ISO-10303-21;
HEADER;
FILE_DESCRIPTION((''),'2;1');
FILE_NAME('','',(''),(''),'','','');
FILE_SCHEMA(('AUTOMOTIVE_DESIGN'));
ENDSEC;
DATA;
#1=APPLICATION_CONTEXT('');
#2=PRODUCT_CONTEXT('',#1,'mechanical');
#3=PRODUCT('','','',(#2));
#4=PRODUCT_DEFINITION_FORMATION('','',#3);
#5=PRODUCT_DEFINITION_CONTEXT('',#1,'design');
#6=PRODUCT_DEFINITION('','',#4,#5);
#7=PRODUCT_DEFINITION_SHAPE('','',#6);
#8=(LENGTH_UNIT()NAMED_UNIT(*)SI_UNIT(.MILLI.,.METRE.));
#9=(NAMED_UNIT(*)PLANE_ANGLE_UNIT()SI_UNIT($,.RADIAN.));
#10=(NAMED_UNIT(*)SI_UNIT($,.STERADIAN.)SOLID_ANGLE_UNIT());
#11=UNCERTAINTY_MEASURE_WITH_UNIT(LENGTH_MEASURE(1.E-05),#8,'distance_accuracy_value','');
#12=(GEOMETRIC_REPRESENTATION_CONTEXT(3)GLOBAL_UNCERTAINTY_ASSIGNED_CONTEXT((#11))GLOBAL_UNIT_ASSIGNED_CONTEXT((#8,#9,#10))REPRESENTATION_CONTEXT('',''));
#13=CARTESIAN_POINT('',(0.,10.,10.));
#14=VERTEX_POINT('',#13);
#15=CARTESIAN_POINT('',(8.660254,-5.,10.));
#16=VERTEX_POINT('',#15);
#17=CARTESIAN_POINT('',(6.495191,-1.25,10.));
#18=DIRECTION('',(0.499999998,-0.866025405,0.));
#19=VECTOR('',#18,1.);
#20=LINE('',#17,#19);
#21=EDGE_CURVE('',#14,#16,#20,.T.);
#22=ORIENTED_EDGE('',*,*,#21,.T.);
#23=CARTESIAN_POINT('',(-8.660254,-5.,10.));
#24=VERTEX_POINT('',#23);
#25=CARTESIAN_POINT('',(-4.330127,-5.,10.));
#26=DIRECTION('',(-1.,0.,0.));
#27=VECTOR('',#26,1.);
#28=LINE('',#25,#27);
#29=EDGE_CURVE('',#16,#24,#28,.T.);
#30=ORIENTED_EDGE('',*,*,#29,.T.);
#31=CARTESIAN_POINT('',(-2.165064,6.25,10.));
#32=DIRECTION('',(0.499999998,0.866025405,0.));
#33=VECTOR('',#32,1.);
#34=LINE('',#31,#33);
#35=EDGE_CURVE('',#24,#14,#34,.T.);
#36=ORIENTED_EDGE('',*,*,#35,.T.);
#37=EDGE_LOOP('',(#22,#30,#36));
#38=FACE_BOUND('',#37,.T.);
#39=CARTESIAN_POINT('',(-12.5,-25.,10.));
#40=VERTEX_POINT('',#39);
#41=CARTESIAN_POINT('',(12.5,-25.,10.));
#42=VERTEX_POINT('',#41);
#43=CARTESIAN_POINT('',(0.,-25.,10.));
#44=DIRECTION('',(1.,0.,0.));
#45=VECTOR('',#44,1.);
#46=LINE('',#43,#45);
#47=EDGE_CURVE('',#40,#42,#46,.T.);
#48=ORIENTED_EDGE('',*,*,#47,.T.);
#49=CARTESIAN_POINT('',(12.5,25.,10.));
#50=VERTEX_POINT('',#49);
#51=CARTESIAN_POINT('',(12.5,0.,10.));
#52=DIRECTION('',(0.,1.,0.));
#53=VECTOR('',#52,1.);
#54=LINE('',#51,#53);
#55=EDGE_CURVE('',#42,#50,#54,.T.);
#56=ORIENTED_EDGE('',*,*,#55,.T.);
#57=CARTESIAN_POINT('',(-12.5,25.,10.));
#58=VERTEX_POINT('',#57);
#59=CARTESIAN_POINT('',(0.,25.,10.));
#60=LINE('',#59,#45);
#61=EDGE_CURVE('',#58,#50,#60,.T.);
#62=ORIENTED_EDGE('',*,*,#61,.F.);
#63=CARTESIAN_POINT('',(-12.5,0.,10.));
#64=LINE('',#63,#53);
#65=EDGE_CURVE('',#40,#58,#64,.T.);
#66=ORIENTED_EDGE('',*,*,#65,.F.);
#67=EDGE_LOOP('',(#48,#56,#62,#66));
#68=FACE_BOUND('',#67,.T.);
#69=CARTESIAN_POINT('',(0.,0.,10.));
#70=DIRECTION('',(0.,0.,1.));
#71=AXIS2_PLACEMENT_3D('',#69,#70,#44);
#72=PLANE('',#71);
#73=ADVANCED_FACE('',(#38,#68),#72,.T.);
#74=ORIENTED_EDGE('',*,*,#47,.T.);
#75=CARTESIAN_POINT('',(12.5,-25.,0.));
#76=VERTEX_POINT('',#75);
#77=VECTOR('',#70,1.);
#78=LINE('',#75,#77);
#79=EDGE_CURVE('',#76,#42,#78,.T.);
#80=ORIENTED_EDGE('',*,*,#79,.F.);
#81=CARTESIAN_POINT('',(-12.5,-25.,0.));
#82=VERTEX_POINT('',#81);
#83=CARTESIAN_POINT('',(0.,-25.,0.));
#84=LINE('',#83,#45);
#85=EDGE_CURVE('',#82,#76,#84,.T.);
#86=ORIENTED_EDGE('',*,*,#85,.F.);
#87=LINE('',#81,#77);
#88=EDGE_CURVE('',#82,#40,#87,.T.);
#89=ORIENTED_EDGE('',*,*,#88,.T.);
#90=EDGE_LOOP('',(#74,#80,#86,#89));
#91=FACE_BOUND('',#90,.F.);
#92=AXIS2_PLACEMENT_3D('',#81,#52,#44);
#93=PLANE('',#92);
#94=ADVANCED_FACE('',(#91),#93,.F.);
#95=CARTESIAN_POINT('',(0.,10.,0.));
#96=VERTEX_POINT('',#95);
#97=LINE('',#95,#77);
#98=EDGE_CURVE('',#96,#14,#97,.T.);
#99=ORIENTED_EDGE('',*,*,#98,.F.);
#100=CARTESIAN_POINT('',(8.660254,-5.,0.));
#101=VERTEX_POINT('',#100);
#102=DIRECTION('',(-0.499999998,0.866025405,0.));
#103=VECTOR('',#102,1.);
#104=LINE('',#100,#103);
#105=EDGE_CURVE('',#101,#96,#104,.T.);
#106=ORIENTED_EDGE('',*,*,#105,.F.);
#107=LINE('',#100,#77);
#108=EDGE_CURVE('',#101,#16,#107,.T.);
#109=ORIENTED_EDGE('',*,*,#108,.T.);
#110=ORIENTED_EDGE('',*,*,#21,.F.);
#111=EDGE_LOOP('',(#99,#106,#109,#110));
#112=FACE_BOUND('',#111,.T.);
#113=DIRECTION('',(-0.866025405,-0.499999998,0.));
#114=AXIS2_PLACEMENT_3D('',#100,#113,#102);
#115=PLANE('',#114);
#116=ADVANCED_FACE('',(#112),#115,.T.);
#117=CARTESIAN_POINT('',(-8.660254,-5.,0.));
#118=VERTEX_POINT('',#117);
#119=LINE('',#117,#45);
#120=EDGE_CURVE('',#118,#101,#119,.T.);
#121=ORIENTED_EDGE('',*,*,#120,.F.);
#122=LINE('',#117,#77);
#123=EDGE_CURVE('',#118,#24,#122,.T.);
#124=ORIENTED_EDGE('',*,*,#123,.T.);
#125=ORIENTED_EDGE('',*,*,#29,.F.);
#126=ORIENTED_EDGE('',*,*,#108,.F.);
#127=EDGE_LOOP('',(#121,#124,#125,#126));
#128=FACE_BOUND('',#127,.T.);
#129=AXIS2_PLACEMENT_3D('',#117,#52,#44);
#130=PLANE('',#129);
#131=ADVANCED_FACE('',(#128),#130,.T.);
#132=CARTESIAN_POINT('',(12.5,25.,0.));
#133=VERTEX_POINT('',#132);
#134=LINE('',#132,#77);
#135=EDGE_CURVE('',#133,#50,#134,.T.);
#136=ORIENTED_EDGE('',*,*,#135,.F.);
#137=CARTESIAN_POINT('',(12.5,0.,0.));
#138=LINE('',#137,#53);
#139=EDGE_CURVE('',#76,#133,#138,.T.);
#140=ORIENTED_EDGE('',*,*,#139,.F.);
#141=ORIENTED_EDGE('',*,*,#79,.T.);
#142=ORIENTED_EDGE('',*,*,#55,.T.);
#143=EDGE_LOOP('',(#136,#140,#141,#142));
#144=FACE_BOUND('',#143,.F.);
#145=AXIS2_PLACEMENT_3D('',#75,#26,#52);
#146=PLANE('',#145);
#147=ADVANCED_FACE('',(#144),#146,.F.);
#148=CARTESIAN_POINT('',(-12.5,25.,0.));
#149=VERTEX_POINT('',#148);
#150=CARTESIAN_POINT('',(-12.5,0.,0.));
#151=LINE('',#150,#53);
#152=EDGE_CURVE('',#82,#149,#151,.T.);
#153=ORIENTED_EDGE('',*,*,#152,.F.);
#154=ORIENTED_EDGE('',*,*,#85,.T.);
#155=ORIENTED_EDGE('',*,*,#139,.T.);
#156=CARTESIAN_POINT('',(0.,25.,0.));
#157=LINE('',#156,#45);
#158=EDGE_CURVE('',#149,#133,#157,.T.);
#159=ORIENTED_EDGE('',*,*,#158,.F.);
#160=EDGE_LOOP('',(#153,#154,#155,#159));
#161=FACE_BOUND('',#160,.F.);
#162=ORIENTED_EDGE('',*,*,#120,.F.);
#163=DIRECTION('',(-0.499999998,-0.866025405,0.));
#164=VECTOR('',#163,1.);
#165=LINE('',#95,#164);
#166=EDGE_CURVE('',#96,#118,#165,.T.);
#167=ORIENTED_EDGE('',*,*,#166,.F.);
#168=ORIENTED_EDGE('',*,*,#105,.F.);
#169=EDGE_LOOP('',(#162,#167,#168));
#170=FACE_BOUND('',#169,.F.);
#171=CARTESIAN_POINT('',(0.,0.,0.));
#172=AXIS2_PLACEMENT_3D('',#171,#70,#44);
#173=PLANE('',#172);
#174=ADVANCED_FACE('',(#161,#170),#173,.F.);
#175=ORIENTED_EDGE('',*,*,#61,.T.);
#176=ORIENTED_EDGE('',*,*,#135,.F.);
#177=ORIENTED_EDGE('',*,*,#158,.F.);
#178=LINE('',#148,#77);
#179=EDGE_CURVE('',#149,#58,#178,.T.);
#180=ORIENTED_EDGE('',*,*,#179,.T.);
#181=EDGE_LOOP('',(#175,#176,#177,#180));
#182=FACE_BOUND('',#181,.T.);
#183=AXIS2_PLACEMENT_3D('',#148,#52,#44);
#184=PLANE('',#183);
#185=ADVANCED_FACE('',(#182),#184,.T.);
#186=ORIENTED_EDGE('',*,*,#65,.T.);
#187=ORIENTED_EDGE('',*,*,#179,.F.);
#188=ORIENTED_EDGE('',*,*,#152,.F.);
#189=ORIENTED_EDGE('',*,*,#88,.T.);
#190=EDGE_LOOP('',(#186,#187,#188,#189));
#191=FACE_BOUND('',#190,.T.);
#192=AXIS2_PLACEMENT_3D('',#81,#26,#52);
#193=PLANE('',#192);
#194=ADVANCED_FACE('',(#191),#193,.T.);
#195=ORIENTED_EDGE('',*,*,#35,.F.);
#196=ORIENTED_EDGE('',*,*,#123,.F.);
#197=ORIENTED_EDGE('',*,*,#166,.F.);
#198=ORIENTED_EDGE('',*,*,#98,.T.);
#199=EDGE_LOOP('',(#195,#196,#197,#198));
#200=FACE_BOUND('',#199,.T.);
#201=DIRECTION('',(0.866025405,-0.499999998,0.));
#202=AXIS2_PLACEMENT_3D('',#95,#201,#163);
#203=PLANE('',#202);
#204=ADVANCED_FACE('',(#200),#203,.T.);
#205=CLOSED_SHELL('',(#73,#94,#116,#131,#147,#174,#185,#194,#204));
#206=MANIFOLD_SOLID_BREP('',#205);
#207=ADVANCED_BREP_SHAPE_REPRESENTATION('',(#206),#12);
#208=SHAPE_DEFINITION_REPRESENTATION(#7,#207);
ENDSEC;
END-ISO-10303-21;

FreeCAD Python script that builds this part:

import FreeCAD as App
import Part
import Sketcher
Q = App.Units.Quantity


def add_polygon(sketch, points):
    """Adds a closed chain of lines whose ends are joined by coincident constraints."""
    first, n = sketch.GeometryCount, len(points)
    for a, b in zip(points, points[1:] + points[:1]):
        sketch.addGeometry(Part.LineSegment(App.Vector(*a, 0), App.Vector(*b, 0)), False)
    for i in range(n):
        sketch.addConstraint(Sketcher.Constraint("Coincident", first + i, 2, first + (i + 1) % n, 1))

doc = App.newDocument("Part")
body = doc.addObject("PartDesign::Body", "Body")

sketch1 = body.newObject("Sketcher::SketchObject", "Sketch")
sketch1.AttachmentSupport = (doc.getObject("XY_Plane"), [""])
sketch1.MapMode = "FlatFace"
add_polygon(sketch1, [(-12.5, 25), (-12.5, -25), (12.5, -25), (12.5, 25)])
sketch1.addConstraint([
    Sketcher.Constraint("Vertical", 0),
    Sketcher.Constraint("Horizontal", 1),
    Sketcher.Constraint("Vertical", 2),
    Sketcher.Constraint("Horizontal", 3),
    Sketcher.Constraint("Symmetric", 0, 2, 2, 2, -1, 1),
    Sketcher.Constraint("DistanceX", 1, 1, 1, 2, Q("25 mm")),
    Sketcher.Constraint("DistanceY", 0, 2, 0, 1, Q("50 mm")),
])
pad1 = body.newObject("PartDesign::Pad", "Pad")
pad1.Profile = sketch1
pad1.Length = 10

sketch2 = body.newObject("Sketcher::SketchObject", "Sketch001")
sketch2.AttachmentSupport = (doc.getObject("XY_Plane"), [""])
sketch2.MapMode = "FlatFace"
add_polygon(sketch2, [(0, 10), (-8.660254, -5), (8.660254, -5)])
sketch2.addConstraint([
    Sketcher.Constraint("Horizontal", 1),
    Sketcher.Constraint("PointOnObject", 2, 2, -2),
    Sketcher.Constraint("Equal", 0, 2),
    Sketcher.Constraint("Angle", 0, Q("-120 deg")),
    Sketcher.Constraint("DistanceY", 0, 2, -1, 1, Q("5 mm")),
    Sketcher.Constraint("DistanceY", -1, 1, 2, 2, Q("10 mm")),
])
pocket1 = body.newObject("PartDesign::Pocket", "Pocket")
pocket1.Profile = sketch2
pocket1.Type = "ThroughAll"
pocket1.Reversed = True

doc.recompute()
